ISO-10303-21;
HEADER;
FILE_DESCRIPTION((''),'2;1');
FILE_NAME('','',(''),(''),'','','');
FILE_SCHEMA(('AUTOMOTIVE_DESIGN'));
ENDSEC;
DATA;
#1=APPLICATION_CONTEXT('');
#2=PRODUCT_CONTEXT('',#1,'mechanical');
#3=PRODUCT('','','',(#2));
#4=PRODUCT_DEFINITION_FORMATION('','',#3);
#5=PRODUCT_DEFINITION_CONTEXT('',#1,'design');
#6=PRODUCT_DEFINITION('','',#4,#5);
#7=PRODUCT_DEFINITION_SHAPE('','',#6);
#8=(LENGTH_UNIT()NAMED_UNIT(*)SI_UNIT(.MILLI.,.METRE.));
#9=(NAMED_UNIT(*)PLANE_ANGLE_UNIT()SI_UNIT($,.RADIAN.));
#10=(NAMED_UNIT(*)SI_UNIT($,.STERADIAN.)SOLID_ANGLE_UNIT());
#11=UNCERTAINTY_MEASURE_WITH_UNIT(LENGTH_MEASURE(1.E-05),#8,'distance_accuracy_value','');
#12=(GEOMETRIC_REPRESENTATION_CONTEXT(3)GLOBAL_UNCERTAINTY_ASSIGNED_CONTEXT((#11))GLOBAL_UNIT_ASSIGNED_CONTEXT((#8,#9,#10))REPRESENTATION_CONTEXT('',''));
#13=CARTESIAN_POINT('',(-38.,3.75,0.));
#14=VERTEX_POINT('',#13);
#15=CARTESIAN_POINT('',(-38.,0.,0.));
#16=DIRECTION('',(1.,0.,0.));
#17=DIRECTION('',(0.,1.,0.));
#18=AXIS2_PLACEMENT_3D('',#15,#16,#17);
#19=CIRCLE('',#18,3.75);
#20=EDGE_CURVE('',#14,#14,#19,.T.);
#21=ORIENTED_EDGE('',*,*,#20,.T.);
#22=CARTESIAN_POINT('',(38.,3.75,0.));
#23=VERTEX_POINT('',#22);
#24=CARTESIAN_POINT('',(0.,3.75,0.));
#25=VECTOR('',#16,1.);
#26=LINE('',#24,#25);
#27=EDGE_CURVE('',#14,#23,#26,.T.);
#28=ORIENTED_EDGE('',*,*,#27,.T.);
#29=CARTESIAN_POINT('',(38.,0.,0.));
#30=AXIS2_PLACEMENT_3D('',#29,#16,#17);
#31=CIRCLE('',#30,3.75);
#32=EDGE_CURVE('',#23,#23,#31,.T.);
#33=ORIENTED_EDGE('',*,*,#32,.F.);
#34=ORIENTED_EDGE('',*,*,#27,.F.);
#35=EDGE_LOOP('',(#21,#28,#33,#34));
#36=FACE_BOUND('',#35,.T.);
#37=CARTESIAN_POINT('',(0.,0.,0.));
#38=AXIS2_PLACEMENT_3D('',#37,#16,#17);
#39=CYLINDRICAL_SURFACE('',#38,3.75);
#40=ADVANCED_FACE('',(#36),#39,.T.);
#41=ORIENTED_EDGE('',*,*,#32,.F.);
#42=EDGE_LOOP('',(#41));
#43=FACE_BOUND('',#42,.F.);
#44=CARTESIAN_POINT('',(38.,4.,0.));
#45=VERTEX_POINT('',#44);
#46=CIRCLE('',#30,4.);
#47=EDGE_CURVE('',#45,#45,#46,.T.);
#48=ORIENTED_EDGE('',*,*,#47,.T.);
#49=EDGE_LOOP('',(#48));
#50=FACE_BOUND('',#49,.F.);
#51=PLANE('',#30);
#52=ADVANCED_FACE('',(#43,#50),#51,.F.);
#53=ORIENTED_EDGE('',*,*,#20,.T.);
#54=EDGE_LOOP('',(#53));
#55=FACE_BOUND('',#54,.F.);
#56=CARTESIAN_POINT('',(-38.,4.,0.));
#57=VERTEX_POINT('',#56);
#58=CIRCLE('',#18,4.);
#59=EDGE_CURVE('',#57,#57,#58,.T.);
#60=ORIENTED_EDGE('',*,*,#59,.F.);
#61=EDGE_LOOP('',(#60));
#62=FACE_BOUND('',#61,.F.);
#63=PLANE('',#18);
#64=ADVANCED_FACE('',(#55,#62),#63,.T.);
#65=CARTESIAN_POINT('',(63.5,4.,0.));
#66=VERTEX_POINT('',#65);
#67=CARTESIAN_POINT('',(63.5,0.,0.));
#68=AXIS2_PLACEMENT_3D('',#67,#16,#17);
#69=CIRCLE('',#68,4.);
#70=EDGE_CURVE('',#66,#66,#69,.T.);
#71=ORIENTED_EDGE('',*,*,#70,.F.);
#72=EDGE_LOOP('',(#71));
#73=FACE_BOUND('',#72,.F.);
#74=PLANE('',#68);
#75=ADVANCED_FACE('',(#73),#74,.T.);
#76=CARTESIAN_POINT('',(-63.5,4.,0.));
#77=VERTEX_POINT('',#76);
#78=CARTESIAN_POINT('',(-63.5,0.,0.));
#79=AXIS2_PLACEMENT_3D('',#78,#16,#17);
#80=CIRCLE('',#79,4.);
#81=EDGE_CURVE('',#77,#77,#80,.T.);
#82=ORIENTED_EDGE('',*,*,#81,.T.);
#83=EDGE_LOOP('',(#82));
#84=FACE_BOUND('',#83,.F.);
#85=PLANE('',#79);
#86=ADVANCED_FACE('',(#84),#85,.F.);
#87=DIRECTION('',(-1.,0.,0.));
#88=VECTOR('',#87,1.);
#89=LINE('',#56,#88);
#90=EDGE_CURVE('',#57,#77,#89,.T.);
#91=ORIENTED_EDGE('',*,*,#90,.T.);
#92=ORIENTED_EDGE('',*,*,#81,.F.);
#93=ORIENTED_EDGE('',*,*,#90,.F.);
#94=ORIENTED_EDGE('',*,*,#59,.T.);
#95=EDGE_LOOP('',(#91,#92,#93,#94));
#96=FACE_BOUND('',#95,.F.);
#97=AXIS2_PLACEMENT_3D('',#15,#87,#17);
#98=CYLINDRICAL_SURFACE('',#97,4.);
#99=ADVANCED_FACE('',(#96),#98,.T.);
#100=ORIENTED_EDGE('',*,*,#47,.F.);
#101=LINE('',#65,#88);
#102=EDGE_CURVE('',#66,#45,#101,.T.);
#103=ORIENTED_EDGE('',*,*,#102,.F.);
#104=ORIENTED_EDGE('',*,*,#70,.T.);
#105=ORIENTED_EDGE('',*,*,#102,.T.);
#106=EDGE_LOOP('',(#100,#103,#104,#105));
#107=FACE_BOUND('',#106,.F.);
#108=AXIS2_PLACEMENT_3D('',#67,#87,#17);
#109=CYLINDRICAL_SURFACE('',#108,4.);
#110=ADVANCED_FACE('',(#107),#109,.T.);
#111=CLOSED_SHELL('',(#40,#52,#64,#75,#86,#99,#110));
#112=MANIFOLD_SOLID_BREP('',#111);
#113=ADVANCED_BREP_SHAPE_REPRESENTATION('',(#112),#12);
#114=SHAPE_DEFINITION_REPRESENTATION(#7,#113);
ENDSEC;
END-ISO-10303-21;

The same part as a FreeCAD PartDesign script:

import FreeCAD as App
import Part
import Sketcher

doc = App.newDocument("Part")
params = doc.addObject("Spreadsheet::Sheet", "Params")
for row, (alias, value) in enumerate([
    ("sketch1_width", "127 mm"),
    ("sketch1_width2", "76 mm"),
    ("sketch1_height", "4 mm"),
    ("sketch1_height2", "0.25 mm"),
    ("revolution_angle", "360 deg"),
], start=1):
    params.set(f"A{row}", alias)
    params.set(f"B{row}", "=" + value)
    params.setAlias(f"B{row}", alias)

body = doc.addObject("PartDesign::Body", "Body")

sketch1 = body.newObject("Sketcher::SketchObject", "Sketch")
sketch1.AttachmentSupport = (doc.getObject("XY_Plane"), [""])
sketch1.MapMode = "FlatFace"
sketch1.addGeometry([
    Part.LineSegment(App.Vector(-63.5, 0, 0), App.Vector(63.5, 0, 0)),
    Part.LineSegment(App.Vector(63.5, 0, 0), App.Vector(63.5, 4, 0)),
    Part.LineSegment(App.Vector(63.5, 4, 0), App.Vector(38, 4, 0)),
    Part.LineSegment(App.Vector(38, 4, 0), App.Vector(38, 3.75, 0)),
    Part.LineSegment(App.Vector(38, 3.75, 0), App.Vector(-38, 3.75, 0)),
    Part.LineSegment(App.Vector(-38, 3.75, 0), App.Vector(-38, 4, 0)),
    Part.LineSegment(App.Vector(-38, 4, 0), App.Vector(-63.5, 4, 0)),
    Part.LineSegment(App.Vector(-63.5, 4, 0), App.Vector(-63.5, 0, 0)),
], False)
sketch1.addConstraint([
    Sketcher.Constraint("Coincident", 0, 2, 1, 1),
    Sketcher.Constraint("Coincident", 1, 2, 2, 1),
    Sketcher.Constraint("Coincident", 2, 2, 3, 1),
    Sketcher.Constraint("Coincident", 3, 2, 4, 1),
    Sketcher.Constraint("Coincident", 4, 2, 5, 1),
    Sketcher.Constraint("Coincident", 5, 2, 6, 1),
    Sketcher.Constraint("Coincident", 6, 2, 7, 1),
    Sketcher.Constraint("Coincident", 7, 2, 0, 1),
    Sketcher.Constraint("Horizontal", 0),
    Sketcher.Constraint("Vertical", 1),
    Sketcher.Constraint("Horizontal", 2),
    Sketcher.Constraint("Vertical", 3),
    Sketcher.Constraint("Horizontal", 4),
    Sketcher.Constraint("Vertical", 5),
    Sketcher.Constraint("Horizontal", 6),
    Sketcher.Constraint("Vertical", 7),
    Sketcher.Constraint("Symmetric", 0, 2, 7, 2, -1, 1),
    Sketcher.Constraint("Symmetric", 2, 2, 5, 2, -2),
    Sketcher.Constraint("DistanceX", 0, 1, 0, 2, 127.0),
    Sketcher.Constraint("DistanceX", 4, 2, 4, 1, 76.0),
    Sketcher.Constraint("DistanceY", 1, 1, 1, 2, 4.0),
    Sketcher.Constraint("DistanceY", 3, 2, 3, 1, 0.25),
])
sketch1.setExpression("Constraints[18]", "Params.sketch1_width")
sketch1.setExpression("Constraints[19]", "Params.sketch1_width2")
sketch1.setExpression("Constraints[20]", "Params.sketch1_height")
sketch1.setExpression("Constraints[21]", "Params.sketch1_height2")
revolution = body.newObject("PartDesign::Revolution", "Revolution")
revolution.Profile = sketch1
revolution.ReferenceAxis = (sketch1, ["H_Axis"])
revolution.setExpression("Angle", "Params.revolution_angle")

doc.recompute()
